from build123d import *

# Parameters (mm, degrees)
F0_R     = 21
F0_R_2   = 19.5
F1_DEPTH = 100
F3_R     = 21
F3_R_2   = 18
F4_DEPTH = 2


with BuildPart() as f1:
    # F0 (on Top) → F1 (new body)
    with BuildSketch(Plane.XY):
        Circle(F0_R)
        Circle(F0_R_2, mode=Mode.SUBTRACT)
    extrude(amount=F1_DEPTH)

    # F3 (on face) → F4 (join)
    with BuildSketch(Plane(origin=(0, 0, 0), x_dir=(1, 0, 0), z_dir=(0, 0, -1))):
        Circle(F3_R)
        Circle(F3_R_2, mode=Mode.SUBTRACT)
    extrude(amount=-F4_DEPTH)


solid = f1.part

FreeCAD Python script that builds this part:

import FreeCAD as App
import Part
import Sketcher
Q = App.Units.Quantity

doc = App.newDocument("Part")
body = doc.addObject("PartDesign::Body", "Body")

sketch1 = body.newObject("Sketcher::SketchObject", "Sketch")
sketch1.AttachmentSupport = (doc.getObject("XY_Plane"), [""])
sketch1.MapMode = "FlatFace"
sketch1.addGeometry([
    Part.Circle(App.Vector(0, 0, 0), App.Vector(0, 0, 1), 21),
    Part.Circle(App.Vector(0, 0, 0), App.Vector(0, 0, 1), 19.5),
], False)
sketch1.addConstraint([
    Sketcher.Constraint("Coincident", 0, 3, -1, 1),
    Sketcher.Constraint("Coincident", 1, 3, -1, 1),
    Sketcher.Constraint("Diameter", 0, Q("42 mm")),
    Sketcher.Constraint("Diameter", 1, Q("39 mm")),
])
pad1 = body.newObject("PartDesign::Pad", "Pad")
pad1.Profile = sketch1
pad1.Length = 100

sketch2 = body.newObject("Sketcher::SketchObject", "Sketch001")
sketch2.AttachmentSupport = (doc.getObject("XY_Plane"), [""])
sketch2.MapMode = "FlatFace"
sketch2.addGeometry([
    Part.Circle(App.Vector(0, 0, 0), App.Vector(0, 0, 1), 21),
    Part.Circle(App.Vector(0, 0, 0), App.Vector(0, 0, 1), 18),
], False)
sketch2.addConstraint([
    Sketcher.Constraint("Coincident", 0, 3, -1, 1),
    Sketcher.Constraint("Coincident", 1, 3, -1, 1),
    Sketcher.Constraint("Diameter", 0, Q("42 mm")),
    Sketcher.Constraint("Diameter", 1, Q("36 mm")),
])
pad2 = body.newObject("PartDesign::Pad", "Pad001")
pad2.Profile = sketch2
pad2.Length = 2

doc.recompute()
